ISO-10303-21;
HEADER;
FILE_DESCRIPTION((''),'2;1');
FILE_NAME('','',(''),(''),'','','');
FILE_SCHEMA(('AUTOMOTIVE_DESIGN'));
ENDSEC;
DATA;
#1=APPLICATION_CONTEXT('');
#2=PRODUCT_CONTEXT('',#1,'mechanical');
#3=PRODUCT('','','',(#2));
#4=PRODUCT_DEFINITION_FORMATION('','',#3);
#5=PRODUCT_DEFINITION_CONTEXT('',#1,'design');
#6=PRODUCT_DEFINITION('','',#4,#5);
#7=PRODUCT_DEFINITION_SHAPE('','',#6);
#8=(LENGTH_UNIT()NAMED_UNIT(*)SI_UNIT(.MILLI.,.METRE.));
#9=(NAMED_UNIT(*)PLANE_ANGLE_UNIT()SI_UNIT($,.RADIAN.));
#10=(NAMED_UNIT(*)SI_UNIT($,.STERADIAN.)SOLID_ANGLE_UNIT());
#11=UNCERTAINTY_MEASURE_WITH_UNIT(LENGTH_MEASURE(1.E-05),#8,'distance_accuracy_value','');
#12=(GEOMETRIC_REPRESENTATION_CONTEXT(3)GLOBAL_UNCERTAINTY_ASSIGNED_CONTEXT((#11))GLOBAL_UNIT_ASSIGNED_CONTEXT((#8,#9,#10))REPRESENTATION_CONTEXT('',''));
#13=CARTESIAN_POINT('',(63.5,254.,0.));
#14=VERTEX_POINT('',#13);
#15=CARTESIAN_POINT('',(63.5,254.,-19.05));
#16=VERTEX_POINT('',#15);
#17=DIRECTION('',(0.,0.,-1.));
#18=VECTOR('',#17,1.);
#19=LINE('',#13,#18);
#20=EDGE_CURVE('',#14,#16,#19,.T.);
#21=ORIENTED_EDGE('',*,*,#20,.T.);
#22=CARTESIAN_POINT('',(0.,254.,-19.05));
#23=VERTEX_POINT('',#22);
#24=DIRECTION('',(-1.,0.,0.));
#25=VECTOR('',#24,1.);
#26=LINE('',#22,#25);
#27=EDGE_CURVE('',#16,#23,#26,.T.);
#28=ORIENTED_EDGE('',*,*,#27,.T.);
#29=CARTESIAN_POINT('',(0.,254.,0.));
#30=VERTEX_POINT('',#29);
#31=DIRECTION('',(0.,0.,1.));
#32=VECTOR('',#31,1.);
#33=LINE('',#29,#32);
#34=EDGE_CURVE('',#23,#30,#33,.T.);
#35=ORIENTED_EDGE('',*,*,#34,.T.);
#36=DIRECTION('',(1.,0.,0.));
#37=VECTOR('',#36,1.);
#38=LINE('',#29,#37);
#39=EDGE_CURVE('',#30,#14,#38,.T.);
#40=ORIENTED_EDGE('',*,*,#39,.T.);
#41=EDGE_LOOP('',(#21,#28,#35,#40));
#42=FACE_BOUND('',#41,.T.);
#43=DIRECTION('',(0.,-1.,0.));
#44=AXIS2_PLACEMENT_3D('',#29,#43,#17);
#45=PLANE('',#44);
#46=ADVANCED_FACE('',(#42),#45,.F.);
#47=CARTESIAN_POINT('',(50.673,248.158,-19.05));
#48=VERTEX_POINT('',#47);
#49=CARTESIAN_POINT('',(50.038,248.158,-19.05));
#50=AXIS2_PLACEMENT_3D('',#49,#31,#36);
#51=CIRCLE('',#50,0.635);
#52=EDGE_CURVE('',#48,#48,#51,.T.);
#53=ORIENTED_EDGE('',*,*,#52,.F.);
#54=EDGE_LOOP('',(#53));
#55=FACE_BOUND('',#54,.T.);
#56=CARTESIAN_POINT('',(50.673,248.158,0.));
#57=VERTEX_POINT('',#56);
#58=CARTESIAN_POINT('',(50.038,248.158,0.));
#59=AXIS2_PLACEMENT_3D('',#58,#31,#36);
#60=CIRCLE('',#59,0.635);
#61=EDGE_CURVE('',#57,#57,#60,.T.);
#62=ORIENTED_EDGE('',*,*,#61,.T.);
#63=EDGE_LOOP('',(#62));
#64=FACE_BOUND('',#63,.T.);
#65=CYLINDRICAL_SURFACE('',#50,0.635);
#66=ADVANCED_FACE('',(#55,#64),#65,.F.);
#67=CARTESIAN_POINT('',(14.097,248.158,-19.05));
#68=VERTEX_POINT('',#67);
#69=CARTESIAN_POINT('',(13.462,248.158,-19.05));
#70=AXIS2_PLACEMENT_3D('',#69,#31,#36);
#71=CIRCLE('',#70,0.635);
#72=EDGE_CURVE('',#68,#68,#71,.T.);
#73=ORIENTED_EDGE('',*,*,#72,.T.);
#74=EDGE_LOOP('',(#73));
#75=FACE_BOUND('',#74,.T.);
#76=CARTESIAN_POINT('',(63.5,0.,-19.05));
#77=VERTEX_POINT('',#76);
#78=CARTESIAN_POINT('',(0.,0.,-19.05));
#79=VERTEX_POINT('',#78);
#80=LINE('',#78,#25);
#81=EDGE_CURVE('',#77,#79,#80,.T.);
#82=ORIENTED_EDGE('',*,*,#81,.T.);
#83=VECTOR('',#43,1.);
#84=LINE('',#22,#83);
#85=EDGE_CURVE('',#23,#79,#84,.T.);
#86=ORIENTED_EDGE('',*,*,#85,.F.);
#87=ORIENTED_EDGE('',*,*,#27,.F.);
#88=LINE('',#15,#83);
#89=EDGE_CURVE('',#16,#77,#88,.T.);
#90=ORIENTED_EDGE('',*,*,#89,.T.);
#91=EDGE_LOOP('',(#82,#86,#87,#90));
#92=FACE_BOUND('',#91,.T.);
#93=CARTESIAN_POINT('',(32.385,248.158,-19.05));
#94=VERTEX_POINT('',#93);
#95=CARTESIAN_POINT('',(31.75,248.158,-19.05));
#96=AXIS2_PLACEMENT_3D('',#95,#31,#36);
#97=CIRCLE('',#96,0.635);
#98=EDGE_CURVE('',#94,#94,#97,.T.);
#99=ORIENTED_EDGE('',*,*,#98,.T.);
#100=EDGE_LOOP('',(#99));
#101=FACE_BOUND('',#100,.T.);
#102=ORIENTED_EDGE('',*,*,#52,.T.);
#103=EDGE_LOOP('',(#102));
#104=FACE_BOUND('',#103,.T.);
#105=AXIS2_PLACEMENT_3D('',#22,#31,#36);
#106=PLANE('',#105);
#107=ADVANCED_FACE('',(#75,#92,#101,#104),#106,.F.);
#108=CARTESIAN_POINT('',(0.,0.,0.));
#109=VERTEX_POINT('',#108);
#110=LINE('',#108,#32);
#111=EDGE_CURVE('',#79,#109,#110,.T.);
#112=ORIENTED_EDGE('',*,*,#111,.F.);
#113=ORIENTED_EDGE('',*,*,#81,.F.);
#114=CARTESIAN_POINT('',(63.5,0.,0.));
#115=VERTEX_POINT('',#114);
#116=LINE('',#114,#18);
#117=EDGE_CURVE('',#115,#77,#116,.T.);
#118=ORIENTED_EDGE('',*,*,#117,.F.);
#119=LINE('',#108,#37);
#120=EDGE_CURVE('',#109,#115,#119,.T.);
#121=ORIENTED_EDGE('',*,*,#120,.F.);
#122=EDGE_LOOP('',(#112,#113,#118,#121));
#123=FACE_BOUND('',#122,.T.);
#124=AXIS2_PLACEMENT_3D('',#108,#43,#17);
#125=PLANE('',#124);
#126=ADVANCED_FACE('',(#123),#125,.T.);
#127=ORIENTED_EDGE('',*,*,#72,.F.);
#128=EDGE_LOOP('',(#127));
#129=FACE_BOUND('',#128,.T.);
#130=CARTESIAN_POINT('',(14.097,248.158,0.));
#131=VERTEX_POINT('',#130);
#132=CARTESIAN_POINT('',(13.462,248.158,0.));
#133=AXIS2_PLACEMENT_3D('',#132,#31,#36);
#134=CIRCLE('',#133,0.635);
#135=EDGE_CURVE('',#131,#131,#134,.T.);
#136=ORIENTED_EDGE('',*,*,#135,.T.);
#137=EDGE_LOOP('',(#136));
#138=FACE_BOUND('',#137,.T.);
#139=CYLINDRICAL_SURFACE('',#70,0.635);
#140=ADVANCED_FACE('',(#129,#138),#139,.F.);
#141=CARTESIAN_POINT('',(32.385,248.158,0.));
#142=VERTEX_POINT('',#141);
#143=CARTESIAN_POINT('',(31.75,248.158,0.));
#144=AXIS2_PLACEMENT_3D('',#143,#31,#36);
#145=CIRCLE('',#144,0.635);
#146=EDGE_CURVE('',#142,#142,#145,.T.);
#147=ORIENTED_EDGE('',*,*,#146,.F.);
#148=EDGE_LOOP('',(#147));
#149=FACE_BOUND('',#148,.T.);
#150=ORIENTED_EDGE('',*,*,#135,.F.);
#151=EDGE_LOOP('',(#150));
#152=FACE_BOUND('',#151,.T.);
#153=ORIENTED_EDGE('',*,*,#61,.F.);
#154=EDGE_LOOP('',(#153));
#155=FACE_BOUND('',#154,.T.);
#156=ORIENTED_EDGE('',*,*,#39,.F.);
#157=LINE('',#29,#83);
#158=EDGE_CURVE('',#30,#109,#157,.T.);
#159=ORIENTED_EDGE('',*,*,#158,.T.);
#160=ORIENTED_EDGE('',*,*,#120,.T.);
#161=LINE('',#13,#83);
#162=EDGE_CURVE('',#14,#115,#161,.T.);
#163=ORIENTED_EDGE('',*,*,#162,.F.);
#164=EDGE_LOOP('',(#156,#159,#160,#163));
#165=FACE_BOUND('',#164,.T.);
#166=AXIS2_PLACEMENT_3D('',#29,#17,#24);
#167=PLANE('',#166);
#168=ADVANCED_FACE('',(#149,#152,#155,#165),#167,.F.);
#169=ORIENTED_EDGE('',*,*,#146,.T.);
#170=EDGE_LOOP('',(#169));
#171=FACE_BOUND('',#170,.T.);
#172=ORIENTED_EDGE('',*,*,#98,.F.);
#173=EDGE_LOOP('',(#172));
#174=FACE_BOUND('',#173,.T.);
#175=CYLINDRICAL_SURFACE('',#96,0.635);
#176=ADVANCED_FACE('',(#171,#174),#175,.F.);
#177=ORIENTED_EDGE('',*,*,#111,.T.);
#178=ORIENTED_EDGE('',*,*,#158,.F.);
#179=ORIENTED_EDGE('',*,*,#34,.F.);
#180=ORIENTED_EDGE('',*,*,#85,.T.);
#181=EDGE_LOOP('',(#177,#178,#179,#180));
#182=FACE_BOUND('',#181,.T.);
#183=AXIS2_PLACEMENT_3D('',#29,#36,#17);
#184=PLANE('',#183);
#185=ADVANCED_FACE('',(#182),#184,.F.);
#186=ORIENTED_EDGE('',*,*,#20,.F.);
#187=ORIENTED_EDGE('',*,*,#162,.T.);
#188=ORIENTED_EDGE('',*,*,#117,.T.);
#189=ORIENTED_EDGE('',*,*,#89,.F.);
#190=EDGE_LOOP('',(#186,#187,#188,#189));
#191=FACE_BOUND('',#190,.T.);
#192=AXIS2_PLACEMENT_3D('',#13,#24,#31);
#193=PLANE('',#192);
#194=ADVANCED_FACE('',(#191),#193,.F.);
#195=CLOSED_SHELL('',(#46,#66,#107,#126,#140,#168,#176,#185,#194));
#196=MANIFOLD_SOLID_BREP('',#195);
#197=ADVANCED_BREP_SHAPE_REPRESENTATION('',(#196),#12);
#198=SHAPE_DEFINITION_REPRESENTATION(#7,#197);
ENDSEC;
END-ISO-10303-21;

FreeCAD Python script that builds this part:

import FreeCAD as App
import Part
import Sketcher
from FreeCAD import Vector
Q = App.Units.Quantity

doc = App.newDocument("Part")
params = doc.addObject("Spreadsheet::Sheet", "Params")
for row, (alias, value) in enumerate([
    ("sketch1_width", "2.5 in"),
    ("sketch1_height", "0.75 in"),
    ("pad1_length", "10 in"),
    ("sketch2_diameter", "0.05 in"),
], start=1):
    params.set(f"A{row}", alias)
    params.set(f"B{row}", "=" + value)
    params.setAlias(f"B{row}", alias)

body = doc.addObject("PartDesign::Body", "Body")

# Sketch on XZ plane
sketch1 = doc.addObject("Sketcher::SketchObject", "Sketch")
body.addObject(sketch1)
sketch1.AttachmentSupport = (doc.XZ_Plane, [""])
sketch1.MapMode = "FlatFace"
sketch1.addGeometry([
    Part.LineSegment(Vector(0, -19.05, 0), Vector(0, 0, 0)),
    Part.LineSegment(Vector(0, 0, 0), Vector(63.5, 0, 0)),
    Part.LineSegment(Vector(63.5, 0, 0), Vector(63.5, -19.05, 0)),
    Part.LineSegment(Vector(63.5, -19.05, 0), Vector(0, -19.05, 0)),
], False)
sketch1.addConstraint([
    Sketcher.Constraint("Coincident", 0, 2, 1, 1),
    Sketcher.Constraint("Coincident", 1, 2, 2, 1),
    Sketcher.Constraint("Coincident", 2, 2, 3, 1),
    Sketcher.Constraint("Coincident", 3, 2, 0, 1),
    Sketcher.Constraint("Vertical", 0),
    Sketcher.Constraint("Horizontal", 1),
    Sketcher.Constraint("Vertical", 2),
    Sketcher.Constraint("Horizontal", 3),
    Sketcher.Constraint("Coincident", 0, 2, -1, 1),
    Sketcher.Constraint("DistanceX", 1, 1, 1, 2, Q("2.5 in")),
    Sketcher.Constraint("DistanceY", 0, 1, 0, 2, Q("0.75 in")),
])
sketch1.setExpression("Constraints[9]", "Params.sketch1_width")
sketch1.setExpression("Constraints[10]", "Params.sketch1_height")
pad1 = doc.addObject("PartDesign::Pad", "Pad")
body.addObject(pad1)
pad1.Profile = sketch1
pad1.setExpression("Length", "Params.pad1_length")
pad1.Reversed = True

# Sketch on XY plane
sketch2 = doc.addObject("Sketcher::SketchObject", "Sketch001")
body.addObject(sketch2)
sketch2.AttachmentSupport = (doc.XY_Plane, [""])
sketch2.MapMode = "FlatFace"
sketch2.addGeometry([
    Part.Circle(Vector(13.462, 248.158, 0), Vector(0, 0, 1), 0.635),
    Part.Circle(Vector(31.75, 248.158, 0), Vector(0, 0, 1), 0.635),
    Part.Circle(Vector(50.038, 248.158, 0), Vector(0, 0, 1), 0.635),
], False)
sketch2.addConstraint([
    Sketcher.Constraint("Equal", 0, 1),
    Sketcher.Constraint("Equal", 1, 2),
    Sketcher.Constraint("Horizontal", 0, 3, 1, 3),
    Sketcher.Constraint("Horizontal", 1, 3, 2, 3),
    Sketcher.Constraint("Diameter", 0, Q("0.05 in")),
    Sketcher.Constraint("DistanceX", -1, 1, 0, 3, Q("0.53 in")),
    Sketcher.Constraint("DistanceY", -1, 1, 0, 3, Q("9.77 in")),
    Sketcher.Constraint("DistanceX", -1, 1, 1, 3, Q("1.25 in")),
    Sketcher.Constraint("DistanceX", -1, 1, 2, 3, Q("1.97 in")),
])
sketch2.setExpression("Constraints[4]", "Params.sketch2_diameter")
pocket1 = doc.addObject("PartDesign::Pocket", "Pocket")
body.addObject(pocket1)
pocket1.Profile = sketch2
pocket1.Type = "ThroughAll"

doc.recompute()
